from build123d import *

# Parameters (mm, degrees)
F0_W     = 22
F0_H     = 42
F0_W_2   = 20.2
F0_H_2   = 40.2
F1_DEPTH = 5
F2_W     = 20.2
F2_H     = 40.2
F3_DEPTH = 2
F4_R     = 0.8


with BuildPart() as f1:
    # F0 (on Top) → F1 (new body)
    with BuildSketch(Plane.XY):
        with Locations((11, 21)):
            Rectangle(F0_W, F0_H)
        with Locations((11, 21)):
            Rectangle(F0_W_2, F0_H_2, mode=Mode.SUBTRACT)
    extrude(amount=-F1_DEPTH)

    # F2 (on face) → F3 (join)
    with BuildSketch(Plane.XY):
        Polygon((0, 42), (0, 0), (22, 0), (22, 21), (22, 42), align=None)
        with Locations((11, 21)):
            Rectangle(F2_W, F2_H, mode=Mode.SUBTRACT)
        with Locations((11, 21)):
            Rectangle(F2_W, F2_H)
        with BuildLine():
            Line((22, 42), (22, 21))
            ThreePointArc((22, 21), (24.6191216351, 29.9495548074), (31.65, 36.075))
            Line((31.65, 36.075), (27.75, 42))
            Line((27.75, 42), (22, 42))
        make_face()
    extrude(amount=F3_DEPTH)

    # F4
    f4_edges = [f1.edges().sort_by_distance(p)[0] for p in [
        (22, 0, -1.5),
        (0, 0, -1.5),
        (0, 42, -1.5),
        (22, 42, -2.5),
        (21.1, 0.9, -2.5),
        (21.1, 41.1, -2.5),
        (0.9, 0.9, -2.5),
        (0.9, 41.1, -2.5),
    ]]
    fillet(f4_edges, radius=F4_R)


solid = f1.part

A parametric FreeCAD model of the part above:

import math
import FreeCAD as App
import Part
import Sketcher
from FreeCAD import Vector


def edges_at(feature, points):
    """Names of the edges that pass closest to the given points."""
    edges = feature.Shape.Edges
    near = lambda p: min(range(len(edges)), key=lambda i: edges[i].distToShape(Part.Vertex(*p))[0])
    return sorted({f"Edge{near(p) + 1}" for p in points})

doc = App.newDocument("Part")
params = doc.addObject("Spreadsheet::Sheet", "Params")
for row, (alias, value) in enumerate([
    ("sketch1_width", "22 mm"),
    ("sketch1_height", "42 mm"),
    ("sketch1_width2", "20.2 mm"),
    ("sketch1_height2", "40.2 mm"),
    ("pad1_length", "5 mm"),
    ("sketch2_width", "22 mm"),
    ("sketch2_height", "42 mm"),
    ("sketch2_height2", "21 mm"),
    ("sketch2_width2", "27.75 mm"),
    ("pad2_length", "2 mm"),
    ("fillet_radius", "0.8 mm"),
], start=1):
    params.set(f"A{row}", alias)
    params.set(f"B{row}", "=" + value)
    params.setAlias(f"B{row}", alias)

body = doc.addObject("PartDesign::Body", "Body")

sketch1 = body.newObject("Sketcher::SketchObject", "Sketch")
sketch1.AttachmentSupport = (doc.getObject("XY_Plane"), [""])
sketch1.MapMode = "FlatFace"
sketch1.addGeometry([
    Part.LineSegment(Vector(0, 42, 0), Vector(0, 0, 0)),
    Part.LineSegment(Vector(0, 0, 0), Vector(22, 0, 0)),
    Part.LineSegment(Vector(22, 0, 0), Vector(22, 42, 0)),
    Part.LineSegment(Vector(22, 42, 0), Vector(0, 42, 0)),
    Part.LineSegment(Vector(21.1, 0.9, 0), Vector(0.9, 0.9, 0)),
    Part.LineSegment(Vector(0.9, 0.9, 0), Vector(0.9, 41.1, 0)),
    Part.LineSegment(Vector(0.9, 41.1, 0), Vector(21.1, 41.1, 0)),
    Part.LineSegment(Vector(21.1, 41.1, 0), Vector(21.1, 0.9, 0)),
], False)
sketch1.addConstraint([
    Sketcher.Constraint("Coincident", 0, 2, 1, 1),
    Sketcher.Constraint("Coincident", 1, 2, 2, 1),
    Sketcher.Constraint("Coincident", 2, 2, 3, 1),
    Sketcher.Constraint("Coincident", 3, 2, 0, 1),
    Sketcher.Constraint("Coincident", 4, 2, 5, 1),
    Sketcher.Constraint("Coincident", 5, 2, 6, 1),
    Sketcher.Constraint("Coincident", 6, 2, 7, 1),
    Sketcher.Constraint("Coincident", 7, 2, 4, 1),
    Sketcher.Constraint("Vertical", 0),
    Sketcher.Constraint("Horizontal", 1),
    Sketcher.Constraint("Vertical", 2),
    Sketcher.Constraint("Horizontal", 3),
    Sketcher.Constraint("Horizontal", 4),
    Sketcher.Constraint("Vertical", 5),
    Sketcher.Constraint("Horizontal", 6),
    Sketcher.Constraint("Vertical", 7),
    Sketcher.Constraint("Coincident", 0, 2, -1, 1),
    Sketcher.Constraint("DistanceX", 1, 1, 1, 2, 22.0),
    Sketcher.Constraint("DistanceY", 0, 2, 0, 1, 42.0),
    Sketcher.Constraint("DistanceX", 4, 2, 4, 1, 20.2),
    Sketcher.Constraint("DistanceY", 5, 1, 5, 2, 40.2),
    Sketcher.Constraint("DistanceX", -1, 1, 4, 2, 0.9),
    Sketcher.Constraint("DistanceY", -1, 1, 4, 2, 0.9),
])
sketch1.setExpression("Constraints[17]", "Params.sketch1_width")
sketch1.setExpression("Constraints[18]", "Params.sketch1_height")
sketch1.setExpression("Constraints[19]", "Params.sketch1_width2")
sketch1.setExpression("Constraints[20]", "Params.sketch1_height2")
pad1 = body.newObject("PartDesign::Pad", "Pad")
pad1.Profile = sketch1
pad1.setExpression("Length", "Params.pad1_length")
pad1.Reversed = True

sketch2 = body.newObject("Sketcher::SketchObject", "Sketch001")
sketch2.AttachmentSupport = (doc.getObject("XY_Plane"), [""])
sketch2.MapMode = "FlatFace"
sketch2.addGeometry([
    Part.LineSegment(Vector(0, 42, 0), Vector(0, 0, 0)),
    Part.LineSegment(Vector(0, 0, 0), Vector(22, 0, 0)),
    Part.LineSegment(Vector(22, 0, 0), Vector(22, 21, 0)),
    Part.ArcOfCircle(Part.Circle(Vector(38.599903, 21, 0), Vector(0, 0, 1), 16.599903), math.radians(114.750729), math.radians(180)),
    Part.LineSegment(Vector(31.65, 36.075, 0), Vector(27.75, 42, 0)),
    Part.LineSegment(Vector(27.75, 42, 0), Vector(0, 42, 0)),
], False)
sketch2.addConstraint([
    Sketcher.Constraint("Coincident", 0, 2, 1, 1),
    Sketcher.Constraint("Coincident", 1, 2, 2, 1),
    Sketcher.Constraint("Tangent", 2, 2, 3, 2),
    Sketcher.Constraint("Coincident", 3, 1, 4, 1),
    Sketcher.Constraint("Coincident", 4, 2, 5, 1),
    Sketcher.Constraint("Coincident", 5, 2, 0, 1),
    Sketcher.Constraint("Vertical", 0),
    Sketcher.Constraint("Horizontal", 1),
    Sketcher.Constraint("Vertical", 2),
    Sketcher.Constraint("Horizontal", 5),
    Sketcher.Constraint("Coincident", 0, 2, -1, 1),
    Sketcher.Constraint("DistanceX", 1, 1, 1, 2, 22.0),
    Sketcher.Constraint("DistanceY", 0, 2, 0, 1, 42.0),
    Sketcher.Constraint("DistanceY", 2, 1, 2, 2, 21.0),
    Sketcher.Constraint("DistanceX", 5, 2, 5, 1, 27.75),
    Sketcher.Constraint("DistanceX", 4, 2, 3, 1, 3.9),
    Sketcher.Constraint("DistanceY", -1, 1, 3, 1, 36.075),
])
sketch2.setExpression("Constraints[11]", "Params.sketch2_width")
sketch2.setExpression("Constraints[12]", "Params.sketch2_height")
sketch2.setExpression("Constraints[13]", "Params.sketch2_height2")
sketch2.setExpression("Constraints[14]", "Params.sketch2_width2")
pad2 = body.newObject("PartDesign::Pad", "Pad001")
pad2.Profile = sketch2
pad2.setExpression("Length", "Params.pad2_length")
doc.recompute()

fillet = body.newObject("PartDesign::Fillet", "Fillet")
fillet.Base = (pad2, edges_at(pad2, [
    (22, 0, -1.5),
    (0, 0, -1.5),
    (0, 42, -1.5),
    (22, 42, -2.5),
    (21.1, 0.9, -2.5),
    (21.1, 41.1, -2.5),
    (0.9, 0.9, -2.5),
    (0.9, 41.1, -2.5),
]))
fillet.setExpression("Radius", "Params.fillet_radius")

doc.recompute()
